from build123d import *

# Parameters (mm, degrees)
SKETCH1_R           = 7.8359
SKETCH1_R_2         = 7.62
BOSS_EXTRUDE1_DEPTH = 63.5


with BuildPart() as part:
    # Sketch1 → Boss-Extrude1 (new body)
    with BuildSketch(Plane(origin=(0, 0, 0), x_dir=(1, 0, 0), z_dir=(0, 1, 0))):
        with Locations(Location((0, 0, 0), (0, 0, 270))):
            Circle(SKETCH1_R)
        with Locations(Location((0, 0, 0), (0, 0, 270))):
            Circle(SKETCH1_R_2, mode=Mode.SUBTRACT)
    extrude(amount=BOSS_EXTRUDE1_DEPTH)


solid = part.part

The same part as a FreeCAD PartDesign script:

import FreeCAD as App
import Part
import Sketcher

V = App.Vector
Q = App.Units.Quantity

doc = App.newDocument("Part")
body = doc.addObject("PartDesign::Body", "Body")

sketch1 = body.newObject("Sketcher::SketchObject", "Sketch")
sketch1.AttachmentSupport = (doc.getObject("XZ_Plane"), [""])
sketch1.MapMode = "FlatFace"
sketch1.addGeometry(Part.Circle(V(0, 0, 0), V(0, 0, 1), 7.8359), False)
sketch1.addGeometry(Part.Circle(V(0, 0, 0), V(0, 0, 1), 7.62), False)
sketch1.addConstraint(Sketcher.Constraint("Coincident", 0, 3, -1, 1))
sketch1.addConstraint(Sketcher.Constraint("Coincident", 1, 3, -1, 1))
sketch1.addConstraint(Sketcher.Constraint("Diameter", 1, Q("0.6 in")))
sketch1.addConstraint(Sketcher.Constraint("Diameter", 0, Q("0.617 in")))
pad1 = body.newObject("PartDesign::Pad", "Pad")
pad1.Profile = sketch1
pad1.Length = Q("2.5 in")
pad1.Reversed = True

doc.recompute()
